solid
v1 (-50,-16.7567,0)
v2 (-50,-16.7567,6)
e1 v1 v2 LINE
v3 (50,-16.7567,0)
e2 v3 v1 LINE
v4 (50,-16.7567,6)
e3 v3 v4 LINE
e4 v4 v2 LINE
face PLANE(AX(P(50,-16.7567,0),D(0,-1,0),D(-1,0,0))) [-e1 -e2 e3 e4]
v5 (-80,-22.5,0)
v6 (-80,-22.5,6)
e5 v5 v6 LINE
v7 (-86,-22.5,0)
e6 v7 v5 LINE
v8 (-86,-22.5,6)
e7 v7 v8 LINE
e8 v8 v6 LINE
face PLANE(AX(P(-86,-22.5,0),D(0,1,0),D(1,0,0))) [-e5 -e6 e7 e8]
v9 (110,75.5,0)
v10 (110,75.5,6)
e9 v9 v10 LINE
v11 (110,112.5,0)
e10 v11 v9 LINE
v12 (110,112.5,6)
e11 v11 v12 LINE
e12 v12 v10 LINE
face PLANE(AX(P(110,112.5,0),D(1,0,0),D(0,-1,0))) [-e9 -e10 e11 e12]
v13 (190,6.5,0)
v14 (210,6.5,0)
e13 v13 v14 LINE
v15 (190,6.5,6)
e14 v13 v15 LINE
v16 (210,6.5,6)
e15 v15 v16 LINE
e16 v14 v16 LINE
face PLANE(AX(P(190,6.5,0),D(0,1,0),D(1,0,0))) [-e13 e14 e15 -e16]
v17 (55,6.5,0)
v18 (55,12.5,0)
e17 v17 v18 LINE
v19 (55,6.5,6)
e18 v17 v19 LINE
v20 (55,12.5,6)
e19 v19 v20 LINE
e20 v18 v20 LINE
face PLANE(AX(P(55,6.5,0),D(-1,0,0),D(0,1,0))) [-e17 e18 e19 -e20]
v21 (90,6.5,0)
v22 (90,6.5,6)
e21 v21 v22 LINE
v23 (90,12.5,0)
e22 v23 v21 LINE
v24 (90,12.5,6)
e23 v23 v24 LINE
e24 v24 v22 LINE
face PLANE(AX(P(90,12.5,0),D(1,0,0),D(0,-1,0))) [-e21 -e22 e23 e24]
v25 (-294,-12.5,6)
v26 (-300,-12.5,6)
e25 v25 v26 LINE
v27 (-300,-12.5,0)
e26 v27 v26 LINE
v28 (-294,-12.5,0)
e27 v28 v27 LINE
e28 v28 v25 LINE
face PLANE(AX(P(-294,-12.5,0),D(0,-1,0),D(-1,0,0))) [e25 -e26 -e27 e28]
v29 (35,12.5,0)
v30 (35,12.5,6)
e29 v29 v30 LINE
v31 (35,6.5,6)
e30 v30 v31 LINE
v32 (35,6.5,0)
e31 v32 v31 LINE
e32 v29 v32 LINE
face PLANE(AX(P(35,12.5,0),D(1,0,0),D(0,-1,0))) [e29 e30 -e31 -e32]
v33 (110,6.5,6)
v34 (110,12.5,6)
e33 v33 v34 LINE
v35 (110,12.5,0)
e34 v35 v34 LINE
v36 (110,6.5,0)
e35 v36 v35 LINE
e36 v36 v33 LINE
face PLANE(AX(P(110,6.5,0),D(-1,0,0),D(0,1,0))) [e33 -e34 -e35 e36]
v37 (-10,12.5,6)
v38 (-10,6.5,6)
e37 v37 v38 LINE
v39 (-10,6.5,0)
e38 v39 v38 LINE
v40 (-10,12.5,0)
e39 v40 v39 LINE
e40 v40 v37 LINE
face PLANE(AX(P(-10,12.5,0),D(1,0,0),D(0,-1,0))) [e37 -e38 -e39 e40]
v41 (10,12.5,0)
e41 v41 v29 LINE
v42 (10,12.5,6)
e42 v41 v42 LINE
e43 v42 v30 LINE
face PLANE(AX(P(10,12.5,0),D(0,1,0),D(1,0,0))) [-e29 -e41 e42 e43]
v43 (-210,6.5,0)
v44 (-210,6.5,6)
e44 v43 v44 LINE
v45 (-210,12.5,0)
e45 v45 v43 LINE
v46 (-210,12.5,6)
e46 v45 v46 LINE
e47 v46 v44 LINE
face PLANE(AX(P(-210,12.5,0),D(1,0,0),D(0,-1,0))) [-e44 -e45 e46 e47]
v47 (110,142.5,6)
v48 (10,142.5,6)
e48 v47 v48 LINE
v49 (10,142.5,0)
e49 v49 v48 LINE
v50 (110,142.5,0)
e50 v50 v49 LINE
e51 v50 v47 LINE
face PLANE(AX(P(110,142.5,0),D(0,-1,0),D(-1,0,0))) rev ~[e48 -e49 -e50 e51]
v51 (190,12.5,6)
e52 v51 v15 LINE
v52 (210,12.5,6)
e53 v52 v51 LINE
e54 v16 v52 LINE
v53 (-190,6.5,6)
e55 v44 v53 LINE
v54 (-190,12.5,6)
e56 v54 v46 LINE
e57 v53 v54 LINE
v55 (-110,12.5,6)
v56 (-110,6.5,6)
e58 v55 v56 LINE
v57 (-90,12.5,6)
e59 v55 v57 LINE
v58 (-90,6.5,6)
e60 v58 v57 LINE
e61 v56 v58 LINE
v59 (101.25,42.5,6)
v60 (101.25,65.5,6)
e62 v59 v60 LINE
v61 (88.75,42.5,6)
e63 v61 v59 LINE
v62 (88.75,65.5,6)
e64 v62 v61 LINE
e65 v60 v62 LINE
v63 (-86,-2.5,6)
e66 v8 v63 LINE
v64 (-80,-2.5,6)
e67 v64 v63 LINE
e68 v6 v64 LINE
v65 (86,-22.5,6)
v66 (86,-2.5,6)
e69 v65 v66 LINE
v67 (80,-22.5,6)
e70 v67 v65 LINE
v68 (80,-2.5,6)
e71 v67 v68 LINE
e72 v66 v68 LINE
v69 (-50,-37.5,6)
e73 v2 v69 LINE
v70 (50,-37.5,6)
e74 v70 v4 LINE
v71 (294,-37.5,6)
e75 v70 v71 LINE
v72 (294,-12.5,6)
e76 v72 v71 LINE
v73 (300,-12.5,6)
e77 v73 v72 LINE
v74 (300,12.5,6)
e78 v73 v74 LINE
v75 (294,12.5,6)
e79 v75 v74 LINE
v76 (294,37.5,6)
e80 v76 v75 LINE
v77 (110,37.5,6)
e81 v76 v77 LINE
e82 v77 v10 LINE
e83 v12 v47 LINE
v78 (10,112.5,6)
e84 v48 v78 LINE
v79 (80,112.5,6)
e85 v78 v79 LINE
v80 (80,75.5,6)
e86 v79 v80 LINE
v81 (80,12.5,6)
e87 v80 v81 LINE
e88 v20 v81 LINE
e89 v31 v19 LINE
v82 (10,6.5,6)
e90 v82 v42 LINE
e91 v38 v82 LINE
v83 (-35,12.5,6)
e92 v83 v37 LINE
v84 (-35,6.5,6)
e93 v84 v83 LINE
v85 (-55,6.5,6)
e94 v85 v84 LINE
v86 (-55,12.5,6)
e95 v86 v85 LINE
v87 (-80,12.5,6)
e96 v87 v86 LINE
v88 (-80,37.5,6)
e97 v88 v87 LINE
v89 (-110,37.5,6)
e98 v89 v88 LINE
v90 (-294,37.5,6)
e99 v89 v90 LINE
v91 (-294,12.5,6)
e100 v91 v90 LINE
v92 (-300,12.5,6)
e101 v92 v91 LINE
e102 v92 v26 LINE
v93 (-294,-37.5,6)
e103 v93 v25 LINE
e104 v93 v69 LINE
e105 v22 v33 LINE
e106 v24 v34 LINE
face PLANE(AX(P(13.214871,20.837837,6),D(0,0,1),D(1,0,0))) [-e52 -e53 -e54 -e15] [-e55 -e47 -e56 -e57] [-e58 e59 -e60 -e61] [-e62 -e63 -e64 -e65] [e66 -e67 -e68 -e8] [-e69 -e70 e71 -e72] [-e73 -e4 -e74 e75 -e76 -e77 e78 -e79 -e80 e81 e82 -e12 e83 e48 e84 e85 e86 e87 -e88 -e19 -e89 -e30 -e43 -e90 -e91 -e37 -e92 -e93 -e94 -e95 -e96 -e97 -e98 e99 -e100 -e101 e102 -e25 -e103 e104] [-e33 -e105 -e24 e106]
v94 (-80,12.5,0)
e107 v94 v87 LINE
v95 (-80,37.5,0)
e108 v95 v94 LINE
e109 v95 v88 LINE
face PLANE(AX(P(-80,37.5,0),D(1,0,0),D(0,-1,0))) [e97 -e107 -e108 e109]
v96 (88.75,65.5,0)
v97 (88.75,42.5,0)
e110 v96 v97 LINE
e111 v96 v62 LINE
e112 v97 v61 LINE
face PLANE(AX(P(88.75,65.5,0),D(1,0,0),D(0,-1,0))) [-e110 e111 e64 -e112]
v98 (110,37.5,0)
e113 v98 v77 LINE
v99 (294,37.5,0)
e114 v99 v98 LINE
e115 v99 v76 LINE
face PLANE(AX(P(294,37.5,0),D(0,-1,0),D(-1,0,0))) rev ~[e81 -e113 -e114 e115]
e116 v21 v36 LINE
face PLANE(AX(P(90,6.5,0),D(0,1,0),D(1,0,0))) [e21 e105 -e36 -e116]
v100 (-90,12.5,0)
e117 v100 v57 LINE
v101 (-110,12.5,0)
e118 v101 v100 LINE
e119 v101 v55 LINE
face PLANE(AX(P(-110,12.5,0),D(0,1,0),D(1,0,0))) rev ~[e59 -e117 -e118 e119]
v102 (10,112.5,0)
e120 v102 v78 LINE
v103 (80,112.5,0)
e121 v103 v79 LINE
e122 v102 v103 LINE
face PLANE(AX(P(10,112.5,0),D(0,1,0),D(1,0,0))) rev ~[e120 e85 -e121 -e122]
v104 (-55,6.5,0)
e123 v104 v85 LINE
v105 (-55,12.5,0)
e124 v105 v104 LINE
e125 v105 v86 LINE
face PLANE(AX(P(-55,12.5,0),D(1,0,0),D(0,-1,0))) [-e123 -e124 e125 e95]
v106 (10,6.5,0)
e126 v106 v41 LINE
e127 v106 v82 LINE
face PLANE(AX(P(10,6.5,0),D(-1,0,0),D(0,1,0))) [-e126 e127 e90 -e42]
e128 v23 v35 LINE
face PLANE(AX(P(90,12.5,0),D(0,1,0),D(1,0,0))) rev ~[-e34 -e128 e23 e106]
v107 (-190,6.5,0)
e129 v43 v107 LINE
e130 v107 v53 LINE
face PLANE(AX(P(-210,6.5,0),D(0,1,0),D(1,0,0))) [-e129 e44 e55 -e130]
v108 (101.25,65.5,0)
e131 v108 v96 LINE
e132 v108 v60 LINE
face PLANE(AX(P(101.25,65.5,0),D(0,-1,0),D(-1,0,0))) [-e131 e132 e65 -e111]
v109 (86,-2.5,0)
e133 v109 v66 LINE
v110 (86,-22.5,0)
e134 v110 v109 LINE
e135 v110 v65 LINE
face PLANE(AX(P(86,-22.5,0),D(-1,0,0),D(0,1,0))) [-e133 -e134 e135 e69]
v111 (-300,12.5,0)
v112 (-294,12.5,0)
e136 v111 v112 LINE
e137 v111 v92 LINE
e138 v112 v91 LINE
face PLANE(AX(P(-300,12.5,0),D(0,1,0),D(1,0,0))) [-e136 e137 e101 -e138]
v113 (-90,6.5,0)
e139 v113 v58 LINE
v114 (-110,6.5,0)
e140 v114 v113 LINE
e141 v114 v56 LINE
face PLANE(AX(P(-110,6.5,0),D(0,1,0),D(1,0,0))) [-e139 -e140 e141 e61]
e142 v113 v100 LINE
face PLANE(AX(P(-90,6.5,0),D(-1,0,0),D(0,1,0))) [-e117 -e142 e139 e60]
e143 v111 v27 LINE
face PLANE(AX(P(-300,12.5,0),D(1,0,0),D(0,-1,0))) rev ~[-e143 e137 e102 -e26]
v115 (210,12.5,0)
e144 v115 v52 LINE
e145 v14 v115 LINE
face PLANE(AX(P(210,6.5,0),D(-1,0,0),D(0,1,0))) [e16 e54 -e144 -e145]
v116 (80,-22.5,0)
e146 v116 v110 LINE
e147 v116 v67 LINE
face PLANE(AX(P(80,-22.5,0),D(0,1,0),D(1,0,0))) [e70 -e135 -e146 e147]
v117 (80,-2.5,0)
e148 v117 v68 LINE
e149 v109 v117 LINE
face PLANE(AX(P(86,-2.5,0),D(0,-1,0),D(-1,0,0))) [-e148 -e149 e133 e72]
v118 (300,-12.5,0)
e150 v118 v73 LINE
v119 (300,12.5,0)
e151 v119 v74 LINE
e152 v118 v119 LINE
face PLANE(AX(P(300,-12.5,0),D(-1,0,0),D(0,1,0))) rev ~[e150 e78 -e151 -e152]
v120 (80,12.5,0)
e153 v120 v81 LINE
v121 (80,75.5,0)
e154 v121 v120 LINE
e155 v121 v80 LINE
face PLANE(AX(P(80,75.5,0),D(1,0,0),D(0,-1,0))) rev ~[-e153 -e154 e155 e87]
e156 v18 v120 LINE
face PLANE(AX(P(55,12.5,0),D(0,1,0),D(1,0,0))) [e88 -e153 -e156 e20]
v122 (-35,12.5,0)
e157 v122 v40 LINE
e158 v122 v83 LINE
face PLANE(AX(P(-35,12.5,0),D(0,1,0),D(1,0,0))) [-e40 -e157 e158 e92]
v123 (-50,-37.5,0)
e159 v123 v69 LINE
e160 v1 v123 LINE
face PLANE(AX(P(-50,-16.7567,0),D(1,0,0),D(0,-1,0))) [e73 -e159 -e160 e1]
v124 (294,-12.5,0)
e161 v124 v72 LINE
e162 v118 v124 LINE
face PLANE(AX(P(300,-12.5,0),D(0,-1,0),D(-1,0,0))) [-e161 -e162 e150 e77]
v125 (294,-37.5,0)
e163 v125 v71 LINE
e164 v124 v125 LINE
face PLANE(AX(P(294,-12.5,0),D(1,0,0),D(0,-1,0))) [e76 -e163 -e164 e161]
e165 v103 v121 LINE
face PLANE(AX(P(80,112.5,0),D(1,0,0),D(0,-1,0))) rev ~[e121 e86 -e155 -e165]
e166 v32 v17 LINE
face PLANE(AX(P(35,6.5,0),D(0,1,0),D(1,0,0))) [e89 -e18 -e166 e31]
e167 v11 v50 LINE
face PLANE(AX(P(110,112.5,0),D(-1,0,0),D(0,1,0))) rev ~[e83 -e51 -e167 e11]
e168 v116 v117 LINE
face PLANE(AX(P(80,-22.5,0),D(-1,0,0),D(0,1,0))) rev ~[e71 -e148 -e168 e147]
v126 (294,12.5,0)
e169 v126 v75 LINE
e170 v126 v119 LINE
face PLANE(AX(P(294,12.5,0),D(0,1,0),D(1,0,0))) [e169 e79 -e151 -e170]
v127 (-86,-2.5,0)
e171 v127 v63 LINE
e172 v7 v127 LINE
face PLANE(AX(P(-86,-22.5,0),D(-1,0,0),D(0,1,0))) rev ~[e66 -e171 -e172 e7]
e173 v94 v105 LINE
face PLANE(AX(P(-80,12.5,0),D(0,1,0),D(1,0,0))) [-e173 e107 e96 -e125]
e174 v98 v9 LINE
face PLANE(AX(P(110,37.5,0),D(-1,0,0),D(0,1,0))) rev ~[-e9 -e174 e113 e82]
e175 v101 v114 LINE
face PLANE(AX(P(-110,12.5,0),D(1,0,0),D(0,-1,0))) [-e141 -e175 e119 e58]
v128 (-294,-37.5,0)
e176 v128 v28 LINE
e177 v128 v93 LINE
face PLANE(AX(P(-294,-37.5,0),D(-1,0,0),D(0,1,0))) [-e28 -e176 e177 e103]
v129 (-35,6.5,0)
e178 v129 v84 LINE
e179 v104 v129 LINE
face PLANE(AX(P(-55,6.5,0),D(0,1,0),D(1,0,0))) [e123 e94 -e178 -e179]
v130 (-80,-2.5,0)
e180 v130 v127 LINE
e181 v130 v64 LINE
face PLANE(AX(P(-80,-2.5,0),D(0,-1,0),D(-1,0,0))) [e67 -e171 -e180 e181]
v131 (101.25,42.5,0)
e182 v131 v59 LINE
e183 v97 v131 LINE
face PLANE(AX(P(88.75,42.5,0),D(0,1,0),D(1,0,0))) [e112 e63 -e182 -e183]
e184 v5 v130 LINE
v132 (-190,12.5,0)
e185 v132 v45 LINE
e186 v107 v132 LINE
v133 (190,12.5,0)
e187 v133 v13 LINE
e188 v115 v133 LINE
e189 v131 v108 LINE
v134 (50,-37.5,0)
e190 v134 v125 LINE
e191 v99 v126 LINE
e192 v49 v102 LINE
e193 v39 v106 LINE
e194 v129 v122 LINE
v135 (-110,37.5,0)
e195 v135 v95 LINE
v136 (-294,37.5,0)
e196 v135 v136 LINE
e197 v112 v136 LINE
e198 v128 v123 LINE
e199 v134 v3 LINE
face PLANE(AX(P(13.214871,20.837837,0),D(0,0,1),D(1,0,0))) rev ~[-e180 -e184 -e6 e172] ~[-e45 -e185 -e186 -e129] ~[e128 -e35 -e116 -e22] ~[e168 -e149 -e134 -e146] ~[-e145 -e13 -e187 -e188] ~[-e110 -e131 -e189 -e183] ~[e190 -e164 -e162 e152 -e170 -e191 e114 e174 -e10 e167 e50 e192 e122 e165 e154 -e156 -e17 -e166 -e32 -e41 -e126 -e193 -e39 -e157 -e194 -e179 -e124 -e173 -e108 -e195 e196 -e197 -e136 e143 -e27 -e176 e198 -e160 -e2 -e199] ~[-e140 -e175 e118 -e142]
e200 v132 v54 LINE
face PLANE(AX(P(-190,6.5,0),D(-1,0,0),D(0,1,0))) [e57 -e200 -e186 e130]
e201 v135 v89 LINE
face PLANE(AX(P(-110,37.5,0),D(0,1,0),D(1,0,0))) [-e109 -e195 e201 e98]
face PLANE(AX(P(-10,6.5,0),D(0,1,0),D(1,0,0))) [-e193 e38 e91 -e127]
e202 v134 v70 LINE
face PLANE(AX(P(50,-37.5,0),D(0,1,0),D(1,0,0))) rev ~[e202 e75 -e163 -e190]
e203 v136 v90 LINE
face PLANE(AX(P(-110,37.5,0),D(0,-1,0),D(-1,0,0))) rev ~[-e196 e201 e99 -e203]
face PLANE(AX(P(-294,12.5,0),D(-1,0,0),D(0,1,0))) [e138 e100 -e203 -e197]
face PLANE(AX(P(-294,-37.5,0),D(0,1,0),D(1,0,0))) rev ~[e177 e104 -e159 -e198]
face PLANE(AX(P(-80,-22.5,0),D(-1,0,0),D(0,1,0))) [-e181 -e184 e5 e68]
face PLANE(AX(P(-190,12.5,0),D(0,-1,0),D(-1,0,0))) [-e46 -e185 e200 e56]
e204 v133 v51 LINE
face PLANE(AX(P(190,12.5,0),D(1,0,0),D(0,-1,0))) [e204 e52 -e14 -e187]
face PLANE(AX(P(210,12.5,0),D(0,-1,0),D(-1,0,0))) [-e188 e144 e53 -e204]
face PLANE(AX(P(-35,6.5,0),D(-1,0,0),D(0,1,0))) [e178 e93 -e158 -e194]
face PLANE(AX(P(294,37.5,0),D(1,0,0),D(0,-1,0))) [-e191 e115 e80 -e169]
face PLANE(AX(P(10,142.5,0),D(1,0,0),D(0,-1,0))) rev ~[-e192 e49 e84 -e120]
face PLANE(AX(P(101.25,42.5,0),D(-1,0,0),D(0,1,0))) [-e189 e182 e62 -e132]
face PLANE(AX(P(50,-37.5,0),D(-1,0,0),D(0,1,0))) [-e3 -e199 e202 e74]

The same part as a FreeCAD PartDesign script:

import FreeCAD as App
import Part
import Sketcher


def add_polygon(sketch, points):
    """Adds a closed chain of lines whose ends are joined by coincident constraints."""
    first, n = sketch.GeometryCount, len(points)
    for a, b in zip(points, points[1:] + points[:1]):
        sketch.addGeometry(Part.LineSegment(App.Vector(*a, 0), App.Vector(*b, 0)), False)
    for i in range(n):
        sketch.addConstraint(Sketcher.Constraint("Coincident", first + i, 2, first + (i + 1) % n, 1))

doc = App.newDocument("Part")
body = doc.addObject("PartDesign::Body", "Body")

# Sketch on XY plane
sketch1 = body.newObject("Sketcher::SketchObject", "Sketch")
sketch1.AttachmentSupport = (doc.getObject("XY_Plane"), [""])
sketch1.MapMode = "FlatFace"
add_polygon(sketch1, [(110, 38), (110, 142), (10, 142), (10, 112), (80, 112), (80, 12), (55, 12), (55, 6), (35, 6), (35, 12), (10, 12), (10, 6), (-10, 6), (-10, 12), (-35, 12), (-35, 6), (-55, 6), (-55, 12), (-80, 12), (-80, 38), (-294, 38), (-294, 12), (-300, 12), (-300, -12), (-294, -12), (-294, -38), (-50, -38), (-50, -17), (50, -17), (50, -38), (294, -38), (294, -12), (300, -12), (300, 12), (294, 12), (294, 38)])  # lines 0-35
add_polygon(sketch1, [(-80, -2), (-80, -22), (-86, -22), (-86, -2)])  # lines 36-39
add_polygon(sketch1, [(-190, 6), (-210, 6), (-210, 12), (-190, 12)])  # lines 40-43
add_polygon(sketch1, [(-90, 6), (-110, 6), (-110, 12), (-90, 12)])  # lines 44-47
add_polygon(sketch1, [(86, -2), (86, -22), (80, -22), (80, -2)])  # lines 48-51
add_polygon(sketch1, [(110, 6), (90, 6), (90, 12), (110, 12)])  # lines 52-55
add_polygon(sketch1, [(210, 6), (190, 6), (190, 12), (210, 12)])  # lines 56-59
add_polygon(sketch1, [(101, 42), (89, 42), (89, 66), (101, 66)])  # lines 60-63
sketch1.addConstraint(Sketcher.Constraint("Vertical", 0))
sketch1.addConstraint(Sketcher.Constraint("Horizontal", 1))
sketch1.addConstraint(Sketcher.Constraint("Vertical", 2))
sketch1.addConstraint(Sketcher.Constraint("Horizontal", 3))
sketch1.addConstraint(Sketcher.Constraint("Vertical", 4))
sketch1.addConstraint(Sketcher.Constraint("Horizontal", 5))
sketch1.addConstraint(Sketcher.Constraint("Vertical", 6))
sketch1.addConstraint(Sketcher.Constraint("Horizontal", 7))
sketch1.addConstraint(Sketcher.Constraint("Vertical", 8))
sketch1.addConstraint(Sketcher.Constraint("Horizontal", 9))
sketch1.addConstraint(Sketcher.Constraint("Vertical", 10))
sketch1.addConstraint(Sketcher.Constraint("Horizontal", 11))
sketch1.addConstraint(Sketcher.Constraint("Vertical", 12))
sketch1.addConstraint(Sketcher.Constraint("Horizontal", 13))
sketch1.addConstraint(Sketcher.Constraint("Vertical", 14))
sketch1.addConstraint(Sketcher.Constraint("Horizontal", 15))
sketch1.addConstraint(Sketcher.Constraint("Vertical", 16))
sketch1.addConstraint(Sketcher.Constraint("Horizontal", 17))
sketch1.addConstraint(Sketcher.Constraint("Vertical", 18))
sketch1.addConstraint(Sketcher.Constraint("Horizontal", 19))
sketch1.addConstraint(Sketcher.Constraint("Vertical", 20))
sketch1.addConstraint(Sketcher.Constraint("Horizontal", 21))
sketch1.addConstraint(Sketcher.Constraint("Vertical", 22))
sketch1.addConstraint(Sketcher.Constraint("Horizontal", 23))
sketch1.addConstraint(Sketcher.Constraint("Vertical", 24))
sketch1.addConstraint(Sketcher.Constraint("Horizontal", 25))
sketch1.addConstraint(Sketcher.Constraint("Vertical", 26))
sketch1.addConstraint(Sketcher.Constraint("Horizontal", 27))
sketch1.addConstraint(Sketcher.Constraint("Vertical", 28))
sketch1.addConstraint(Sketcher.Constraint("Horizontal", 29))
sketch1.addConstraint(Sketcher.Constraint("Vertical", 30))
sketch1.addConstraint(Sketcher.Constraint("Horizontal", 31))
sketch1.addConstraint(Sketcher.Constraint("Vertical", 32))
sketch1.addConstraint(Sketcher.Constraint("Horizontal", 33))
sketch1.addConstraint(Sketcher.Constraint("Vertical", 34))
sketch1.addConstraint(Sketcher.Constraint("Horizontal", 35))
sketch1.addConstraint(Sketcher.Constraint("Vertical", 36))
sketch1.addConstraint(Sketcher.Constraint("Horizontal", 37))
sketch1.addConstraint(Sketcher.Constraint("Vertical", 38))
sketch1.addConstraint(Sketcher.Constraint("Horizontal", 39))
sketch1.addConstraint(Sketcher.Constraint("Horizontal", 40))
sketch1.addConstraint(Sketcher.Constraint("Vertical", 41))
sketch1.addConstraint(Sketcher.Constraint("Horizontal", 42))
sketch1.addConstraint(Sketcher.Constraint("Vertical", 43))
sketch1.addConstraint(Sketcher.Constraint("Horizontal", 44))
sketch1.addConstraint(Sketcher.Constraint("Vertical", 45))
sketch1.addConstraint(Sketcher.Constraint("Horizontal", 46))
sketch1.addConstraint(Sketcher.Constraint("Vertical", 47))
sketch1.addConstraint(Sketcher.Constraint("Vertical", 48))
sketch1.addConstraint(Sketcher.Constraint("Horizontal", 49))
sketch1.addConstraint(Sketcher.Constraint("Vertical", 50))
sketch1.addConstraint(Sketcher.Constraint("Horizontal", 51))
sketch1.addConstraint(Sketcher.Constraint("Horizontal", 52))
sketch1.addConstraint(Sketcher.Constraint("Vertical", 53))
sketch1.addConstraint(Sketcher.Constraint("Horizontal", 54))
sketch1.addConstraint(Sketcher.Constraint("Vertical", 55))
sketch1.addConstraint(Sketcher.Constraint("Horizontal", 56))
sketch1.addConstraint(Sketcher.Constraint("Vertical", 57))
sketch1.addConstraint(Sketcher.Constraint("Horizontal", 58))
sketch1.addConstraint(Sketcher.Constraint("Vertical", 59))
sketch1.addConstraint(Sketcher.Constraint("Horizontal", 60))
sketch1.addConstraint(Sketcher.Constraint("Vertical", 61))
sketch1.addConstraint(Sketcher.Constraint("Horizontal", 62))
sketch1.addConstraint(Sketcher.Constraint("Vertical", 63))
sketch1.addConstraint(Sketcher.Constraint("Symmetric", 19, 2, 29, 2, -1, 1))
sketch1.addConstraint(Sketcher.Constraint("Symmetric", 21, 2, 31, 2, -1, 1))
sketch1.addConstraint(Sketcher.Constraint("Symmetric", 23, 2, 33, 2, -1, 1))
sketch1.addConstraint(Sketcher.Constraint("Symmetric", 9, 2, 12, 2, -2))
sketch1.addConstraint(Sketcher.Constraint("Symmetric", 7, 2, 14, 2, -2))
sketch1.addConstraint(Sketcher.Constraint("Symmetric", 5, 2, 16, 2, -2))
sketch1.addConstraint(Sketcher.Constraint("Symmetric", 25, 2, 28, 2, -2))
sketch1.addConstraint(Sketcher.Constraint("Symmetric", 23, 2, 30, 2, -2))
sketch1.addConstraint(Sketcher.Constraint("Symmetric", 37, 2, 48, 2, -2))
sketch1.addConstraint(Sketcher.Constraint("Symmetric", 39, 2, 50, 2, -2))
sketch1.addConstraint(Sketcher.Constraint("Symmetric", 47, 2, 52, 2, -2))
sketch1.addConstraint(Sketcher.Constraint("Symmetric", 45, 2, 54, 2, -2))
sketch1.addConstraint(Sketcher.Constraint("Symmetric", 43, 2, 56, 2, -2))
sketch1.addConstraint(Sketcher.Constraint("Symmetric", 41, 2, 58, 2, -2))
sketch1.addConstraint(Sketcher.Constraint("Horizontal", 5, 2, 8, 2))
sketch1.addConstraint(Sketcher.Constraint("Horizontal", 7, 2, 10, 2))
sketch1.addConstraint(Sketcher.Constraint("Horizontal", 17, 2, 20, 2))
sketch1.addConstraint(Sketcher.Constraint("Horizontal", 19, 2, 34, 2))
sketch1.addConstraint(Sketcher.Constraint("Horizontal", 15, 2, 40, 2))
sketch1.addConstraint(Sketcher.Constraint("Horizontal", 33, 2, 41, 2))
sketch1.addConstraint(Sketcher.Constraint("Horizontal", 43, 2, 44, 2))
sketch1.addConstraint(Sketcher.Constraint("Horizontal", 42, 2, 45, 2))
sketch1.addConstraint(Sketcher.Constraint("Vertical", 2, 2, 9, 2))
sketch1.addConstraint(Sketcher.Constraint("Vertical", 18, 2, 36, 2))
sketch1.addConstraint(Sketcher.Constraint("Vertical", 4, 2, 49, 2))
sketch1.addConstraint(Sketcher.Constraint("Vertical", 35, 2, 54, 2))
sketch1.addConstraint(Sketcher.Constraint("Equal", 5, 9))
sketch1.addConstraint(Sketcher.Constraint("Equal", 7, 11))
sketch1.addConstraint(Sketcher.Constraint("Equal", 1, 27))
sketch1.addConstraint(Sketcher.Constraint("Equal", 33, 37))
sketch1.addConstraint(Sketcher.Constraint("Equal", 15, 40))
sketch1.addConstraint(Sketcher.Constraint("Equal", 42, 44))
sketch1.addConstraint(Sketcher.Constraint("Equal", 27, 4))
sketch1.addConstraint(Sketcher.Constraint("Equal", 51, 6))
sketch1.addConstraint(Sketcher.Constraint("Equal", 17, 18))
sketch1.addConstraint(Sketcher.Constraint("Equal", 20, 22))
sketch1.addConstraint(Sketcher.Constraint("Equal", 58, 36))
sketch1.addConstraint(Sketcher.Constraint("DistanceX", -1, 1, 0, 2, 110.0))
sketch1.addConstraint(Sketcher.Constraint("DistanceX", -1, 1, 3, 2, 80.0))
sketch1.addConstraint(Sketcher.Constraint("DistanceX", -1, 1, 7, 2, 35.0))
sketch1.addConstraint(Sketcher.Constraint("DistanceX", 21, 2, -1, 1, 300.0))
sketch1.addConstraint(Sketcher.Constraint("DistanceX", 37, 2, -1, 1, 86.0))
sketch1.addConstraint(Sketcher.Constraint("DistanceX", 40, 2, -1, 1, 210.0))
sketch1.addConstraint(Sketcher.Constraint("DistanceY", 0, 1, 0, 2, 105.0))
sketch1.addConstraint(Sketcher.Constraint("DistanceY", 61, 1, 61, 2, 23.0))
sketch1.addConstraint(Sketcher.Constraint("DistanceX", -1, 1, 60, 2, 88.75))
sketch1.addConstraint(Sketcher.Constraint("DistanceX", -1, 1, 62, 2, 101.25))
sketch1.addConstraint(Sketcher.Constraint("DistanceY", 36, 2, -1, 1, 22.5))
sketch1.addConstraint(Sketcher.Constraint("DistanceY", -1, 1, 60, 2, 42.5))
sketch1.addConstraint(Sketcher.Constraint("DistanceY", 26, 1, 26, 2, 20.7433))
pad1 = body.newObject("PartDesign::Pad", "Pad")
pad1.Profile = sketch1
pad1.Length = 6

doc.recompute()
